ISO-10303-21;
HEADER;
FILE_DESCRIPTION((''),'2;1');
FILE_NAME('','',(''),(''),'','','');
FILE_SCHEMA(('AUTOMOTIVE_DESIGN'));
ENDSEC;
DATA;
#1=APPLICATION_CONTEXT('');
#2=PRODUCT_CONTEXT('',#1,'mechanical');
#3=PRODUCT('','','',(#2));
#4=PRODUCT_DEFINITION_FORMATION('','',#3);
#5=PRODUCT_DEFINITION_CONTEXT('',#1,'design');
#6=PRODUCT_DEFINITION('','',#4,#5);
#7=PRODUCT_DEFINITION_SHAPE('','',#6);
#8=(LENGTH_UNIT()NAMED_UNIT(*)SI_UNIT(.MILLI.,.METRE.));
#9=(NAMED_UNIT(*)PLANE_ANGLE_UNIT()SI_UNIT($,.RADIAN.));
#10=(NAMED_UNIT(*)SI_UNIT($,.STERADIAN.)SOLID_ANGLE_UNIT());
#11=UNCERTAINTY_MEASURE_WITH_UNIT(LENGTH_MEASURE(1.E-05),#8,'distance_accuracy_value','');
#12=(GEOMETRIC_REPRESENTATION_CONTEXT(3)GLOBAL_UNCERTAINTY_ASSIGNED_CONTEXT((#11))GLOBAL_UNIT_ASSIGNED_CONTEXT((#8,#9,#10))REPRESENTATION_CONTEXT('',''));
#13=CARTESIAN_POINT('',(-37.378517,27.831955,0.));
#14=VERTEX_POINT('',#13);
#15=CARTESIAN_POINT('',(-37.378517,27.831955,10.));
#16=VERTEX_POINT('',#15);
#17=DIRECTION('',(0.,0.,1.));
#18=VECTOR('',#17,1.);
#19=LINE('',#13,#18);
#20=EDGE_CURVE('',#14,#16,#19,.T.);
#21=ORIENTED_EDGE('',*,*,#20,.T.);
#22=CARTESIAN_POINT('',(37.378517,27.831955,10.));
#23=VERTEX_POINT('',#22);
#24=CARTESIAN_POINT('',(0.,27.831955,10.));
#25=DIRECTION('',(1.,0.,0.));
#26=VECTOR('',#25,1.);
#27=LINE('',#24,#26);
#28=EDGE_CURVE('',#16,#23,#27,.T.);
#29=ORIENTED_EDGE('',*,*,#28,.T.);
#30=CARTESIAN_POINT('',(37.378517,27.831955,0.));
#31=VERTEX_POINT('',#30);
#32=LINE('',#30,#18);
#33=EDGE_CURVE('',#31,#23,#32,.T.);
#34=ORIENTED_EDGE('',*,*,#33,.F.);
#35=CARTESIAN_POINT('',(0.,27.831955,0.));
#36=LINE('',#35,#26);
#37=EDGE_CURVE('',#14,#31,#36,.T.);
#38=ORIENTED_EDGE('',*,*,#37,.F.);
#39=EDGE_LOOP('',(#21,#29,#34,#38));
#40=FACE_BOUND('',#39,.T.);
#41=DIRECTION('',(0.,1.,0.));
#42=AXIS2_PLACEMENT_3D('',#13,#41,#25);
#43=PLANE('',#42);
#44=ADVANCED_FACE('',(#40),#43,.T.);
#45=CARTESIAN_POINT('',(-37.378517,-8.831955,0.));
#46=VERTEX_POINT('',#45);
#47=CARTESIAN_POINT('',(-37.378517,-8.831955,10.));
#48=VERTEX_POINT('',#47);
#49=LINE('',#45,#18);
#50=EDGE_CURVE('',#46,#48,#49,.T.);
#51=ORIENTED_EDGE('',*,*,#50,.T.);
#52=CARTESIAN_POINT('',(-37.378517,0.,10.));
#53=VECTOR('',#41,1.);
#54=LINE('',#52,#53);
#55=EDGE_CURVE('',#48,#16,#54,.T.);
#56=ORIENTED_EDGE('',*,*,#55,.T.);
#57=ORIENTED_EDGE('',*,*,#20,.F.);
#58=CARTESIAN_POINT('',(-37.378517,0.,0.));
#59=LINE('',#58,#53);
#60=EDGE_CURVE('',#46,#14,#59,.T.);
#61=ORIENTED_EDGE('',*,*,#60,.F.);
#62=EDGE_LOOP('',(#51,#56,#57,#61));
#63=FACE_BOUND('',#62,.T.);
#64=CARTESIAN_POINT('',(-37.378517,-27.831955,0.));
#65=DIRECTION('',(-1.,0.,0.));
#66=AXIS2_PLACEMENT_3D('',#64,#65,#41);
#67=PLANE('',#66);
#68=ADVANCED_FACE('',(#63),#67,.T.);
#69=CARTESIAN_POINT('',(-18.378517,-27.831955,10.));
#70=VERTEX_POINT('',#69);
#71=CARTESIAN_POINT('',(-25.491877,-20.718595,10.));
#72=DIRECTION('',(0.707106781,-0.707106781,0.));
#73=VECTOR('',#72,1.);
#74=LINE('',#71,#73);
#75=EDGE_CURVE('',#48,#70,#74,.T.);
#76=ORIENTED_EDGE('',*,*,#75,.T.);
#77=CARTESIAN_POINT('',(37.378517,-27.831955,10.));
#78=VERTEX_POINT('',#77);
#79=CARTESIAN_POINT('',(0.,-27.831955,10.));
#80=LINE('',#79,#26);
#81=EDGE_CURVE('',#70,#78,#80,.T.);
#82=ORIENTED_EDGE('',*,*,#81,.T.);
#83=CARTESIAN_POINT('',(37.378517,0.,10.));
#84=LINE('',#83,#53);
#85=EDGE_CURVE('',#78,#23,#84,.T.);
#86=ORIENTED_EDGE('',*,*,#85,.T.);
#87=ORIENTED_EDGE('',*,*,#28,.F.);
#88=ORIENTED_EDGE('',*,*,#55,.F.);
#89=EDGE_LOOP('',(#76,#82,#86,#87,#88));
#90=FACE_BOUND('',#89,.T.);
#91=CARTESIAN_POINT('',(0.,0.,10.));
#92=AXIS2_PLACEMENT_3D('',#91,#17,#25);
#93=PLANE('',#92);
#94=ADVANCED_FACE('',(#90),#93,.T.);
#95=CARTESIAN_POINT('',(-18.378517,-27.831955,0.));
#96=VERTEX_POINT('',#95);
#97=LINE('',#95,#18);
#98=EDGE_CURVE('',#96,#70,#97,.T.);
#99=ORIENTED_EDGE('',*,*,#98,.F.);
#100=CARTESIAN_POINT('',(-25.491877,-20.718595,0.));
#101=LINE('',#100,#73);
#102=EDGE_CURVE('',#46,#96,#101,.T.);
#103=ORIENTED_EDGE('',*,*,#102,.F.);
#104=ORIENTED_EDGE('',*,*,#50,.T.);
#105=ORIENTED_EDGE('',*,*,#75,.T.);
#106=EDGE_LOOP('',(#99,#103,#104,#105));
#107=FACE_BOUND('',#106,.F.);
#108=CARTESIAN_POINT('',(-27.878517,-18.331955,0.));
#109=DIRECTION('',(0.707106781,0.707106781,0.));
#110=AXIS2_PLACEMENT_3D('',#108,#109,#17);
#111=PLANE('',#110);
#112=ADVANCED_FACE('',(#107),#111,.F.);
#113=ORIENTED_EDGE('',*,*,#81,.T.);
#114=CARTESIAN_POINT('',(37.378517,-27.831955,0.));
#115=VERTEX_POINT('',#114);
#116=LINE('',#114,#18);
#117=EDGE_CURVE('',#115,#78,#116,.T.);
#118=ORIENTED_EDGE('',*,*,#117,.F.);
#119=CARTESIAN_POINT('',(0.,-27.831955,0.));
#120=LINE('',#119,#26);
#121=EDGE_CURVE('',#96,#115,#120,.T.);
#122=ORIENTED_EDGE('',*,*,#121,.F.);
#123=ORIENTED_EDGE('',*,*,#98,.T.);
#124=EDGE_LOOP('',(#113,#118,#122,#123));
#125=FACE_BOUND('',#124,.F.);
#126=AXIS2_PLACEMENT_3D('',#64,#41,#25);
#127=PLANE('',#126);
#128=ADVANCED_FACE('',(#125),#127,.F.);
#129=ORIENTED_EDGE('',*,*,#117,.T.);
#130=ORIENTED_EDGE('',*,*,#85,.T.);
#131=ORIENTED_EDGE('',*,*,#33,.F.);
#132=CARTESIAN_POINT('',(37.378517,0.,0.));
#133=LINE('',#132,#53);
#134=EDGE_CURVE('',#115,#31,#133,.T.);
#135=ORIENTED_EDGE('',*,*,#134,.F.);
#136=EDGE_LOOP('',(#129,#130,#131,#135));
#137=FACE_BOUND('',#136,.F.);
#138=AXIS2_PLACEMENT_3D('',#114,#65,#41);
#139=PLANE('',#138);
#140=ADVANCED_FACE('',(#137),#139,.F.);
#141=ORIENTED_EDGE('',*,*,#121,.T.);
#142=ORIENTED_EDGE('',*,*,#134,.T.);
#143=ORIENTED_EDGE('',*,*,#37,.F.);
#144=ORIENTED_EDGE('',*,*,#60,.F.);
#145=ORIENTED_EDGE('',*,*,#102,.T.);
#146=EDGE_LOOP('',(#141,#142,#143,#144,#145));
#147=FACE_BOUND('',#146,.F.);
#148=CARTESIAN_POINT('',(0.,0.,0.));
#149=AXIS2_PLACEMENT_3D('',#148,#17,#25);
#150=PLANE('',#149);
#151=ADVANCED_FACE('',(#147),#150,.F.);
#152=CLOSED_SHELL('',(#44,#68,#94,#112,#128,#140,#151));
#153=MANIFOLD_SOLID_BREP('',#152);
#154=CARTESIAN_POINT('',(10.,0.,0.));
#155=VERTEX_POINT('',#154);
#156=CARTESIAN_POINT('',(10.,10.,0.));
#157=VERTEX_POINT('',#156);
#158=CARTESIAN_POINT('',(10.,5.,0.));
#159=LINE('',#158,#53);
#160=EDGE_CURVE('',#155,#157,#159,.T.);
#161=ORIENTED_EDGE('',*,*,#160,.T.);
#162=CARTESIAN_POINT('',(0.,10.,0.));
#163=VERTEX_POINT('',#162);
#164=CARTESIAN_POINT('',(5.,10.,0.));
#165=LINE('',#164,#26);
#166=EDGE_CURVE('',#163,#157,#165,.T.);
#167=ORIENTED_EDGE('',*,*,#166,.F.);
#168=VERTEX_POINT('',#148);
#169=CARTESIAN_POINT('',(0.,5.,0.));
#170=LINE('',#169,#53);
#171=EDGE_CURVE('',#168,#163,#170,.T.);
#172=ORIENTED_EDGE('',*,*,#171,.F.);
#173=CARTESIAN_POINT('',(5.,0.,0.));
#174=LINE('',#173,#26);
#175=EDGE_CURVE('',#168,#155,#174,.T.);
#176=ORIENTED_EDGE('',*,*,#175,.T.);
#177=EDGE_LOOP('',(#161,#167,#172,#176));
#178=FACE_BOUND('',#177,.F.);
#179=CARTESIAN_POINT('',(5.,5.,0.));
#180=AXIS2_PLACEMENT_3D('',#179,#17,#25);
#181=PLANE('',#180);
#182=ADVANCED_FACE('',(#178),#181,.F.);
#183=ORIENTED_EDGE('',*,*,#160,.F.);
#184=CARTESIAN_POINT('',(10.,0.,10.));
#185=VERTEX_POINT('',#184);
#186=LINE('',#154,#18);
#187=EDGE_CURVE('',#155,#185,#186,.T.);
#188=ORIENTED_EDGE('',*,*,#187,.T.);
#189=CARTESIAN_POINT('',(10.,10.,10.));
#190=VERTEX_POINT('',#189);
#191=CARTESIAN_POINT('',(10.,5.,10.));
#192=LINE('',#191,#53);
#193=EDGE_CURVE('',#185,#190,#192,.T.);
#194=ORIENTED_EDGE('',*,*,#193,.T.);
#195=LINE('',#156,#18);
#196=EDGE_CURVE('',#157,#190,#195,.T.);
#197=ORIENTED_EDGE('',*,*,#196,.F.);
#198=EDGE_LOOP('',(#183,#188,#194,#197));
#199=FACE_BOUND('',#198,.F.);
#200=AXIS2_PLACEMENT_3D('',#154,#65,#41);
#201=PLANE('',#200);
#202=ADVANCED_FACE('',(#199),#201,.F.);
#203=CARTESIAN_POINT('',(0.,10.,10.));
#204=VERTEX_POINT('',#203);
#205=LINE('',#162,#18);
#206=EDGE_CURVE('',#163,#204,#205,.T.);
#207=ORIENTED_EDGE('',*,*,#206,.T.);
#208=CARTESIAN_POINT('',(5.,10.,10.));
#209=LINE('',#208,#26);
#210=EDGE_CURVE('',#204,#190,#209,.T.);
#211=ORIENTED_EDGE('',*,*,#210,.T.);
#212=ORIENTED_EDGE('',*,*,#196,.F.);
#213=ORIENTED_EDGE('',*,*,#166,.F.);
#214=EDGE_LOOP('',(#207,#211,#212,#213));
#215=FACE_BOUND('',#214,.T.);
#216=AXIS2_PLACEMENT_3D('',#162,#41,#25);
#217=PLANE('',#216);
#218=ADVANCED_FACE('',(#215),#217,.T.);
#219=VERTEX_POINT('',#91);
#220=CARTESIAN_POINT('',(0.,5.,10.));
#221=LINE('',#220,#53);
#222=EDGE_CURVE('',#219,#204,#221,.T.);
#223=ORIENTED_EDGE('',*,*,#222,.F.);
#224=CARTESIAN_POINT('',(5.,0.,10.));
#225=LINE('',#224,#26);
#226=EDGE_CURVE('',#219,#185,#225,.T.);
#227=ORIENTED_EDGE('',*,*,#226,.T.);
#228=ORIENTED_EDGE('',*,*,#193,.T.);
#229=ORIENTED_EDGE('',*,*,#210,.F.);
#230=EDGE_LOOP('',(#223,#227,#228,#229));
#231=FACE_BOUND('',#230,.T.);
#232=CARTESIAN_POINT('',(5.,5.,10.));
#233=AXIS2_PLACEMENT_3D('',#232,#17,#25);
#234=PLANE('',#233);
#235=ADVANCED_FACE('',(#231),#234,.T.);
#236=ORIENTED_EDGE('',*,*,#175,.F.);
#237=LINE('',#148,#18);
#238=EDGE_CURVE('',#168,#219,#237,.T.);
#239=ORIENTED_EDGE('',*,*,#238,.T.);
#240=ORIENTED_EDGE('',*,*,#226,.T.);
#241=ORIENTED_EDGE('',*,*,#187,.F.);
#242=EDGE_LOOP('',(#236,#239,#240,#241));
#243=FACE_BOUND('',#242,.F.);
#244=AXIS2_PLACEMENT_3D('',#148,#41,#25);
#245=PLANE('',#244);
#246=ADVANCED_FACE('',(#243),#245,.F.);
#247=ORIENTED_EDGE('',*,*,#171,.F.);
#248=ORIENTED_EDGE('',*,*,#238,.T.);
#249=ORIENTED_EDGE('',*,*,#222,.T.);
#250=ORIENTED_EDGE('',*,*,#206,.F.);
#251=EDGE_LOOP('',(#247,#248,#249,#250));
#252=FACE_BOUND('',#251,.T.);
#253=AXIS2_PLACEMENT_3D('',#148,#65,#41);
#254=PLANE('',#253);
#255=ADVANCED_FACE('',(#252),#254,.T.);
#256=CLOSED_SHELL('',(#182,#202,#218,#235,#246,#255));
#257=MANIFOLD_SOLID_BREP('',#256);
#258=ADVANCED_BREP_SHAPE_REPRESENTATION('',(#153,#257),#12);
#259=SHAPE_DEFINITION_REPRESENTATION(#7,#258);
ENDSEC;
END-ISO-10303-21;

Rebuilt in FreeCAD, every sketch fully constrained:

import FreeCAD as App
import Part
import Sketcher


def edges_at(feature, points):
    """Names of the edges that pass closest to the given points."""
    edges = feature.Shape.Edges
    near = lambda p: min(range(len(edges)), key=lambda i: edges[i].distToShape(Part.Vertex(*p))[0])
    return sorted({f"Edge{near(p) + 1}" for p in points})


def add_polygon(sketch, points):
    """Adds a closed chain of lines whose ends are joined by coincident constraints."""
    first, n = sketch.GeometryCount, len(points)
    for a, b in zip(points, points[1:] + points[:1]):
        sketch.addGeometry(Part.LineSegment(App.Vector(*a, 0), App.Vector(*b, 0)), False)
    for i in range(n):
        sketch.addConstraint(Sketcher.Constraint("Coincident", first + i, 2, first + (i + 1) % n, 1))

doc = App.newDocument("Part")
params = doc.addObject("Spreadsheet::Sheet", "Params")
for row, (alias, value) in enumerate([
    ("pad1_length", "10 mm"),
    ("chamfer_size", "19 mm"),
    ("sketch2_width", "10 mm"),
    ("pad2_length", "10 mm"),
], start=1):
    params.set(f"A{row}", alias)
    params.set(f"B{row}", "=" + value)
    params.setAlias(f"B{row}", alias)

body = doc.addObject("PartDesign::Body", "Body")

sketch1 = body.newObject("Sketcher::SketchObject", "Sketch")
sketch1.AttachmentSupport = (doc.getObject("XY_Plane"), [""])
sketch1.MapMode = "FlatFace"
add_polygon(sketch1, [(-37, 28), (-37, -28), (37, -28), (37, 28)])
sketch1.addConstraint([
    Sketcher.Constraint("Vertical", 0),
    Sketcher.Constraint("Horizontal", 1),
    Sketcher.Constraint("Vertical", 2),
    Sketcher.Constraint("Horizontal", 3),
    Sketcher.Constraint("Symmetric", 0, 2, 2, 2, -1, 1),
    Sketcher.Constraint("DistanceY", 0, 2, 0, 1, 55.66391),
    Sketcher.Constraint("DistanceX", 1, 1, 1, 2, 74.757034),
])
pad1 = body.newObject("PartDesign::Pad", "Pad")
pad1.Profile = sketch1
pad1.setExpression("Length", "Params.pad1_length")
doc.recompute()

chamfer = body.newObject("PartDesign::Chamfer", "Chamfer")
chamfer.Base = (pad1, edges_at(pad1, [(-37.379, -27.832, 5)]))
chamfer.setExpression("Size", "Params.chamfer_size")
body2 = doc.addObject("PartDesign::Body", "Body001")

sketch2 = body2.newObject("Sketcher::SketchObject", "Sketch001")
sketch2.AttachmentSupport = (doc.getObject("XY_Plane001"), [""])
sketch2.MapMode = "FlatFace"
add_polygon(sketch2, [(0, 10), (0, 0), (10, 0), (10, 10)])
sketch2.addConstraint([
    Sketcher.Constraint("Vertical", 0),
    Sketcher.Constraint("Horizontal", 1),
    Sketcher.Constraint("Vertical", 2),
    Sketcher.Constraint("Horizontal", 3),
    Sketcher.Constraint("Coincident", 0, 2, -1, 1),
    Sketcher.Constraint("Equal", 3, 0),
    Sketcher.Constraint("DistanceX", 1, 1, 1, 2, 10.0),
])
sketch2.setExpression("Constraints[10]", "Params.sketch2_width")
pad2 = body2.newObject("PartDesign::Pad", "Pad001")
pad2.Profile = sketch2
pad2.setExpression("Length", "Params.pad2_length")

doc.recompute()
